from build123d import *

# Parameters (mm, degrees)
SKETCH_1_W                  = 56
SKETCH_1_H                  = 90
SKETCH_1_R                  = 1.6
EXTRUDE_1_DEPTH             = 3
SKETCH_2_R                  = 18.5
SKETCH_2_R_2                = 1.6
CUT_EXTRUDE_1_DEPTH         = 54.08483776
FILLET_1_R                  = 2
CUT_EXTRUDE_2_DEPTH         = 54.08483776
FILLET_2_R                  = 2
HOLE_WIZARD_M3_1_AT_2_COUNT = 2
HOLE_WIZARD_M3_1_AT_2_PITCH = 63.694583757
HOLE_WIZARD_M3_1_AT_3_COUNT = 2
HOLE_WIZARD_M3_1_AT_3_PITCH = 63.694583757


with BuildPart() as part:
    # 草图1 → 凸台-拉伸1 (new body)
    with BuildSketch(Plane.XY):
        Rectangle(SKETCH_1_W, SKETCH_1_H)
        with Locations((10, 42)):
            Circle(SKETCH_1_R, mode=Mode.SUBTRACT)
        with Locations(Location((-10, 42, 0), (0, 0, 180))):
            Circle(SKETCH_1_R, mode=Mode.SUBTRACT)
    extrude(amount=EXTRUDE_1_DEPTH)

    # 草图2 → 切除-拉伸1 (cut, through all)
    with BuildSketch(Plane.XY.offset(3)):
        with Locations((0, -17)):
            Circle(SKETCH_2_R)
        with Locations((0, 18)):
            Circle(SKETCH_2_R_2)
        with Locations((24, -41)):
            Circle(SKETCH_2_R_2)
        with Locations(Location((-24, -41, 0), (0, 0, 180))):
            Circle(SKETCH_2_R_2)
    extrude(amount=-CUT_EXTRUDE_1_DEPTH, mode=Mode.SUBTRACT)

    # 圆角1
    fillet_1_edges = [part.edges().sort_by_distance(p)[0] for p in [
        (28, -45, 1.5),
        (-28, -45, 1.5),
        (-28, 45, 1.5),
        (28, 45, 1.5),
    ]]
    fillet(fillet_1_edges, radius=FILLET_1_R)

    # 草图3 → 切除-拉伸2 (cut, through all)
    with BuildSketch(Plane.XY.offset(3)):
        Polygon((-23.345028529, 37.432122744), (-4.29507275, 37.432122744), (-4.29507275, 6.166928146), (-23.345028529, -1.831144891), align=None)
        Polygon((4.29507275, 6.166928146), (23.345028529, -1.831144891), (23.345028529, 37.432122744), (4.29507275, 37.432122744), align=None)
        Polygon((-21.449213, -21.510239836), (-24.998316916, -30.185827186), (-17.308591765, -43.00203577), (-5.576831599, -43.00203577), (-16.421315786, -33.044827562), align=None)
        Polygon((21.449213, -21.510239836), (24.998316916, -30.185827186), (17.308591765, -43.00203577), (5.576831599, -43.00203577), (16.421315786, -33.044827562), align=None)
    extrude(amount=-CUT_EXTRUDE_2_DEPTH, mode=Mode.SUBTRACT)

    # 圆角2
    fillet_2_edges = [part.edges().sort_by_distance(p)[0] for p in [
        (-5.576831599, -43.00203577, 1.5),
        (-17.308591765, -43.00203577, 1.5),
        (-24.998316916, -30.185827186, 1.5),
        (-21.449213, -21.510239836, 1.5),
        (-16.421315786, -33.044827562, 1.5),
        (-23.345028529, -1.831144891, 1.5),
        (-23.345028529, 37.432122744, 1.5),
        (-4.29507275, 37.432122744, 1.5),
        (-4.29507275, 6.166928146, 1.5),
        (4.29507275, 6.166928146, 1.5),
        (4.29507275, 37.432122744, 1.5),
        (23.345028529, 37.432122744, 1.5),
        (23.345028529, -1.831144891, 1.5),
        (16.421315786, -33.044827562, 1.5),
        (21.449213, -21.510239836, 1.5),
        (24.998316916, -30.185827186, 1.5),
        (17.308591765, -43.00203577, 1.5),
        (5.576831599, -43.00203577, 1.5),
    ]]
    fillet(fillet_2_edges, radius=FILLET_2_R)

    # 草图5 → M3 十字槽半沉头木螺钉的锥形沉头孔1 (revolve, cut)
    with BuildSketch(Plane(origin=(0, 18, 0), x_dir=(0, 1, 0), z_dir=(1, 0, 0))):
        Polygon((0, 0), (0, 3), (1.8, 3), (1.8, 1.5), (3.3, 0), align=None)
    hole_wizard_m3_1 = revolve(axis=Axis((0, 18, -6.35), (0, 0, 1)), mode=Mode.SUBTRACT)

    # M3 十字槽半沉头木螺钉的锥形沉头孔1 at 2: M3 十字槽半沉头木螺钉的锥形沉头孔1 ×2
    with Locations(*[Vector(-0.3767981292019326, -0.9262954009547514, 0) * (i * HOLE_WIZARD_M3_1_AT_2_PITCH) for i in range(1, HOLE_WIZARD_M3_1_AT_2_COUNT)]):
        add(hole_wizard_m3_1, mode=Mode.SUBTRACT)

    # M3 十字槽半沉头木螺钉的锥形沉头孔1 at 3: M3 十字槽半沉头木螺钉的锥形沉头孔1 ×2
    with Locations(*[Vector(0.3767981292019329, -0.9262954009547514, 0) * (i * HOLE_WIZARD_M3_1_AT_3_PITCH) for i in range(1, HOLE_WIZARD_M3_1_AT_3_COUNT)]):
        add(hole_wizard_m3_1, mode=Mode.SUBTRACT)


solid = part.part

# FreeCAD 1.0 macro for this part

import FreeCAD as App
import Part
import Sketcher

V = App.Vector
Q = App.Units.Quantity


def edges_at(feature, points):
    """Names of the edges that pass closest to the given points."""
    edges = feature.Shape.Edges
    near = lambda p: min(range(len(edges)), key=lambda i: edges[i].distToShape(Part.Vertex(*p))[0])
    return sorted({f"Edge{near(p) + 1}" for p in points})

doc = App.newDocument("Part")
body = doc.addObject("PartDesign::Body", "Body")

sketch1 = body.newObject("Sketcher::SketchObject", "Sketch")
sketch1.AttachmentSupport = (doc.getObject("XY_Plane"), [""])
sketch1.MapMode = "FlatFace"
sketch1.addGeometry([
    Part.LineSegment(V(-28, 45, 0), V(-28, -45, 0)),
    Part.LineSegment(V(-28, -45, 0), V(28, -45, 0)),
    Part.LineSegment(V(28, -45, 0), V(28, 45, 0)),
    Part.LineSegment(V(28, 45, 0), V(-28, 45, 0)),
    Part.Circle(V(-10, 42, 0), V(0, 0, 1), 1.6),
    Part.Circle(V(10, 42, 0), V(0, 0, 1), 1.6),
], False)
sketch1.addConstraint([
    Sketcher.Constraint("Coincident", 0, 2, 1, 1),
    Sketcher.Constraint("Coincident", 1, 2, 2, 1),
    Sketcher.Constraint("Coincident", 2, 2, 3, 1),
    Sketcher.Constraint("Coincident", 3, 2, 0, 1),
    Sketcher.Constraint("Vertical", 0),
    Sketcher.Constraint("Horizontal", 1),
    Sketcher.Constraint("Vertical", 2),
    Sketcher.Constraint("Horizontal", 3),
    Sketcher.Constraint("Equal", 4, 5),
    Sketcher.Constraint("Symmetric", 0, 2, 2, 2, -1, 1),
    Sketcher.Constraint("Symmetric", 4, 3, 5, 3, -2),
    Sketcher.Constraint("Diameter", 4, 3.2),
    Sketcher.Constraint("DistanceX", 1, 1, 1, 2, 56.0),
    Sketcher.Constraint("DistanceY", 0, 2, 0, 1, 90.0),
    Sketcher.Constraint("DistanceX", 4, 3, -1, 1, 10.0),
    Sketcher.Constraint("DistanceY", -1, 1, 4, 3, 42.0),
])
pad1 = body.newObject("PartDesign::Pad", "Pad")
pad1.Profile = sketch1
pad1.Length = 3

sketch2 = body.newObject("Sketcher::SketchObject", "Sketch001")
sketch2.AttachmentSupport = (doc.getObject("XY_Plane"), [""])
sketch2.MapMode = "FlatFace"
sketch2.AttachmentOffset = App.Placement(V(0, 0, 3), App.Rotation())
sketch2.addGeometry([
    Part.Circle(V(0, -17, 0), V(0, 0, 1), 18.5),
    Part.Circle(V(0, 18, 0), V(0, 0, 1), 1.6),
    Part.Circle(V(24, -41, 0), V(0, 0, 1), 1.6),
    Part.Circle(V(-24, -41, 0), V(0, 0, 1), 1.6),
], False)
sketch2.addConstraint([
    Sketcher.Constraint("Equal", 1, 2),
    Sketcher.Constraint("Equal", 2, 3),
    Sketcher.Constraint("Symmetric", 2, 3, 3, 3, -2),
    Sketcher.Constraint("PointOnObject", 0, 3, -2),
    Sketcher.Constraint("PointOnObject", 1, 3, -2),
    Sketcher.Constraint("Diameter", 0, 37.0),
    Sketcher.Constraint("Diameter", 1, 3.2),
    Sketcher.Constraint("DistanceY", 0, 3, -1, 1, 17.0),
    Sketcher.Constraint("DistanceY", -1, 1, 1, 3, 18.0),
    Sketcher.Constraint("DistanceX", -1, 1, 2, 3, 24.0),
    Sketcher.Constraint("DistanceY", 2, 3, -1, 1, 41.0),
])
pocket1 = body.newObject("PartDesign::Pocket", "Pocket")
pocket1.Profile = sketch2
pocket1.Type = "ThroughAll"
doc.recompute()

fillet = body.newObject("PartDesign::Fillet", "Fillet")
fillet.Base = (pocket1, edges_at(pocket1, [
    (28, -45, 1.5),
    (-28, -45, 1.5),
    (-28, 45, 1.5),
    (28, 45, 1.5),
]))
fillet.Radius = 2

sketch3 = body.newObject("Sketcher::SketchObject", "Sketch002")
sketch3.AttachmentSupport = (doc.getObject("XY_Plane"), [""])
sketch3.MapMode = "FlatFace"
sketch3.AttachmentOffset = App.Placement(V(0, 0, 3), App.Rotation())
sketch3.addGeometry([
    Part.LineSegment(V(-4, 37, 0), V(-23, 37, 0)),
    Part.LineSegment(V(-23, 37, 0), V(-23, -2, 0)),
    Part.LineSegment(V(-23, -2, 0), V(-4, 6, 0)),
    Part.LineSegment(V(-4, 6, 0), V(-4, 37, 0)),
    Part.LineSegment(V(4, 6, 0), V(23, -2, 0)),
    Part.LineSegment(V(23, -2, 0), V(23, 37, 0)),
    Part.LineSegment(V(23, 37, 0), V(4, 37, 0)),
    Part.LineSegment(V(4, 37, 0), V(4, 6, 0)),
    Part.LineSegment(V(-21, -22, 0), V(-25, -30, 0)),
    Part.LineSegment(V(-25, -30, 0), V(-17, -43, 0)),
    Part.LineSegment(V(-17, -43, 0), V(-6, -43, 0)),
    Part.LineSegment(V(-6, -43, 0), V(-16, -33, 0)),
    Part.LineSegment(V(-16, -33, 0), V(-21, -22, 0)),
    Part.LineSegment(V(25, -30, 0), V(21, -22, 0)),
    Part.LineSegment(V(21, -22, 0), V(16, -33, 0)),
    Part.LineSegment(V(16, -33, 0), V(6, -43, 0)),
    Part.LineSegment(V(6, -43, 0), V(17, -43, 0)),
    Part.LineSegment(V(17, -43, 0), V(25, -30, 0)),
], False)
sketch3.addConstraint([
    Sketcher.Constraint("Coincident", 0, 2, 1, 1),
    Sketcher.Constraint("Coincident", 1, 2, 2, 1),
    Sketcher.Constraint("Coincident", 2, 2, 3, 1),
    Sketcher.Constraint("Coincident", 3, 2, 0, 1),
    Sketcher.Constraint("Coincident", 4, 2, 5, 1),
    Sketcher.Constraint("Coincident", 5, 2, 6, 1),
    Sketcher.Constraint("Coincident", 6, 2, 7, 1),
    Sketcher.Constraint("Coincident", 7, 2, 4, 1),
    Sketcher.Constraint("Coincident", 8, 2, 9, 1),
    Sketcher.Constraint("Coincident", 9, 2, 10, 1),
    Sketcher.Constraint("Coincident", 10, 2, 11, 1),
    Sketcher.Constraint("Coincident", 11, 2, 12, 1),
    Sketcher.Constraint("Coincident", 12, 2, 8, 1),
    Sketcher.Constraint("Coincident", 13, 2, 14, 1),
    Sketcher.Constraint("Coincident", 14, 2, 15, 1),
    Sketcher.Constraint("Coincident", 15, 2, 16, 1),
    Sketcher.Constraint("Coincident", 16, 2, 17, 1),
    Sketcher.Constraint("Coincident", 17, 2, 13, 1),
    Sketcher.Constraint("Horizontal", 0),
    Sketcher.Constraint("Vertical", 1),
    Sketcher.Constraint("Vertical", 3),
    Sketcher.Constraint("Vertical", 5),
    Sketcher.Constraint("Horizontal", 6),
    Sketcher.Constraint("Vertical", 7),
    Sketcher.Constraint("Horizontal", 10),
    Sketcher.Constraint("Horizontal", 16),
    Sketcher.Constraint("Symmetric", 1, 2, 4, 2, -2),
    Sketcher.Constraint("Symmetric", 3, 2, 6, 2, -2),
    Sketcher.Constraint("Symmetric", 12, 2, 13, 2, -2),
    Sketcher.Constraint("Symmetric", 11, 2, 14, 2, -2),
    Sketcher.Constraint("Symmetric", 10, 2, 15, 2, -2),
    Sketcher.Constraint("Symmetric", 8, 2, 17, 2, -2),
    Sketcher.Constraint("Horizontal", 2, 2, 7, 2),
    Sketcher.Constraint("Equal", 10, 16),
    Sketcher.Constraint("DistanceX", 8, 2, 11, 2, 8.577001),
    Sketcher.Constraint("DistanceY", 11, 2, 8, 2, 2.859),
    Sketcher.Constraint("DistanceX", 10, 1, 10, 2, 11.73176),
    Sketcher.Constraint("DistanceX", 2, 2, 4, 2, 27.640101),
    Sketcher.Constraint("Distance", 8, 9.373471),
    Sketcher.Constraint("Distance", 9, 14.946139),
    Sketcher.Constraint("DistanceX", 0, 2, 0, 1, 19.049956),
    Sketcher.Constraint("DistanceY", 1, 2, 1, 1, 39.263268),
    Sketcher.Constraint("DistanceY", 3, 1, 3, 2, 31.265195),
    Sketcher.Constraint("DistanceY", -1, 1, 2, 2, 6.166928),
    Sketcher.Constraint("DistanceX", 9, 2, -1, 1, 17.308592),
    Sketcher.Constraint("DistanceY", 12, 2, -1, 1, 21.51024),
    Sketcher.Constraint("DistanceX", 8, 2, 1, 2, 1.653288),
    Sketcher.Constraint("DistanceY", 8, 2, 0, 2, 67.61795),
])
pocket2 = body.newObject("PartDesign::Pocket", "Pocket001")
pocket2.Profile = sketch3
pocket2.Type = "ThroughAll"
doc.recompute()

fillet2 = body.newObject("PartDesign::Fillet", "Fillet001")
fillet2.Base = (pocket2, edges_at(pocket2, [
    (-5.577, -43.002, 1.5),
    (-17.309, -43.002, 1.5),
    (-24.998, -30.186, 1.5),
    (-21.449, -21.51, 1.5),
    (-16.421, -33.045, 1.5),
    (-23.345, -1.831, 1.5),
    (-23.345, 37.432, 1.5),
    (-4.295, 37.432, 1.5),
    (-4.295, 6.167, 1.5),
    (4.295, 6.167, 1.5),
    (4.295, 37.432, 1.5),
    (23.345, 37.432, 1.5),
    (23.345, -1.831, 1.5),
    (16.421, -33.045, 1.5),
    (21.449, -21.51, 1.5),
    (24.998, -30.186, 1.5),
    (17.309, -43.002, 1.5),
    (5.577, -43.002, 1.5),
]))
fillet2.Radius = 2

sketch4 = body.newObject("Sketcher::SketchObject", "Sketch003")
sketch4.AttachmentSupport = (doc.getObject("YZ_Plane"), [""])
sketch4.MapMode = "FlatFace"
sketch4.addGeometry([
    Part.LineSegment(V(18, 3, 0), V(18, 0, 0)),
    Part.LineSegment(V(18, 0, 0), V(21.3, 0, 0)),
    Part.LineSegment(V(21.3, 0, 0), V(19.8, 1.5, 0)),
    Part.LineSegment(V(19.8, 1.5, 0), V(19.8, 3, 0)),
    Part.LineSegment(V(19.8, 3, 0), V(18, 3, 0)),
], False)
sketch4.addGeometry(Part.LineSegment(V(18, 0, 0), V(18, 3, 0)), True)
sketch4.addConstraint([
    Sketcher.Constraint("Coincident", 0, 2, 1, 1),
    Sketcher.Constraint("Coincident", 1, 2, 2, 1),
    Sketcher.Constraint("Coincident", 2, 2, 3, 1),
    Sketcher.Constraint("Coincident", 3, 2, 4, 1),
    Sketcher.Constraint("Coincident", 4, 2, 0, 1),
    Sketcher.Constraint("Vertical", 0),
    Sketcher.Constraint("Horizontal", 1),
    Sketcher.Constraint("Vertical", 3),
    Sketcher.Constraint("Horizontal", 4),
    Sketcher.Constraint("Vertical", 5),
    Sketcher.Constraint("Coincident", 5, 1, 0, 2),
    Sketcher.Constraint("PointOnObject", 0, 2, -1),
    Sketcher.Constraint("Horizontal", 3, 2, 5, 2),
    Sketcher.Constraint("DistanceY", 0, 2, 0, 1, 3.0),
    Sketcher.Constraint("Angle", 2, Q("135 deg")),
    Sketcher.Constraint("DistanceX", 1, 1, 1, 2, 3.3),
    Sketcher.Constraint("DistanceX", 4, 2, 4, 1, 1.8),
    Sketcher.Constraint("DistanceX", -1, 1, 0, 2, 18.0),
])
groove = body.newObject("PartDesign::Groove", "Groove")
groove.Profile = sketch4
groove.ReferenceAxis = (sketch4, ["Axis0"])
groove.Angle = 360
doc.recompute()

datumline = body.newObject("PartDesign::Line", "DatumLine")
datumline.Placement = App.Placement(V(0, 0, 0), App.Rotation(V(0, 0, 1), V(-0.376798129, -0.926295401, 0)))
linearpattern = body.newObject("PartDesign::LinearPattern", "LinearPattern")
linearpattern.Originals = [groove]
linearpattern.Direction = (datumline, [""])
linearpattern.Mode = "offset"
linearpattern.Offset = 63.694584
linearpattern.Occurrences = 2
body.Tip = linearpattern
doc.recompute()

datumline2 = body.newObject("PartDesign::Line", "DatumLine001")
datumline2.Placement = App.Placement(V(0, 0, 0), App.Rotation(V(0, 0, 1), V(0.376798129, -0.926295401, 0)))
linearpattern2 = body.newObject("PartDesign::LinearPattern", "LinearPattern001")
linearpattern2.Originals = [groove]
linearpattern2.Direction = (datumline2, [""])
linearpattern2.Mode = "offset"
linearpattern2.Offset = 63.694584
linearpattern2.Occurrences = 2
body.Tip = linearpattern2

doc.recompute()
